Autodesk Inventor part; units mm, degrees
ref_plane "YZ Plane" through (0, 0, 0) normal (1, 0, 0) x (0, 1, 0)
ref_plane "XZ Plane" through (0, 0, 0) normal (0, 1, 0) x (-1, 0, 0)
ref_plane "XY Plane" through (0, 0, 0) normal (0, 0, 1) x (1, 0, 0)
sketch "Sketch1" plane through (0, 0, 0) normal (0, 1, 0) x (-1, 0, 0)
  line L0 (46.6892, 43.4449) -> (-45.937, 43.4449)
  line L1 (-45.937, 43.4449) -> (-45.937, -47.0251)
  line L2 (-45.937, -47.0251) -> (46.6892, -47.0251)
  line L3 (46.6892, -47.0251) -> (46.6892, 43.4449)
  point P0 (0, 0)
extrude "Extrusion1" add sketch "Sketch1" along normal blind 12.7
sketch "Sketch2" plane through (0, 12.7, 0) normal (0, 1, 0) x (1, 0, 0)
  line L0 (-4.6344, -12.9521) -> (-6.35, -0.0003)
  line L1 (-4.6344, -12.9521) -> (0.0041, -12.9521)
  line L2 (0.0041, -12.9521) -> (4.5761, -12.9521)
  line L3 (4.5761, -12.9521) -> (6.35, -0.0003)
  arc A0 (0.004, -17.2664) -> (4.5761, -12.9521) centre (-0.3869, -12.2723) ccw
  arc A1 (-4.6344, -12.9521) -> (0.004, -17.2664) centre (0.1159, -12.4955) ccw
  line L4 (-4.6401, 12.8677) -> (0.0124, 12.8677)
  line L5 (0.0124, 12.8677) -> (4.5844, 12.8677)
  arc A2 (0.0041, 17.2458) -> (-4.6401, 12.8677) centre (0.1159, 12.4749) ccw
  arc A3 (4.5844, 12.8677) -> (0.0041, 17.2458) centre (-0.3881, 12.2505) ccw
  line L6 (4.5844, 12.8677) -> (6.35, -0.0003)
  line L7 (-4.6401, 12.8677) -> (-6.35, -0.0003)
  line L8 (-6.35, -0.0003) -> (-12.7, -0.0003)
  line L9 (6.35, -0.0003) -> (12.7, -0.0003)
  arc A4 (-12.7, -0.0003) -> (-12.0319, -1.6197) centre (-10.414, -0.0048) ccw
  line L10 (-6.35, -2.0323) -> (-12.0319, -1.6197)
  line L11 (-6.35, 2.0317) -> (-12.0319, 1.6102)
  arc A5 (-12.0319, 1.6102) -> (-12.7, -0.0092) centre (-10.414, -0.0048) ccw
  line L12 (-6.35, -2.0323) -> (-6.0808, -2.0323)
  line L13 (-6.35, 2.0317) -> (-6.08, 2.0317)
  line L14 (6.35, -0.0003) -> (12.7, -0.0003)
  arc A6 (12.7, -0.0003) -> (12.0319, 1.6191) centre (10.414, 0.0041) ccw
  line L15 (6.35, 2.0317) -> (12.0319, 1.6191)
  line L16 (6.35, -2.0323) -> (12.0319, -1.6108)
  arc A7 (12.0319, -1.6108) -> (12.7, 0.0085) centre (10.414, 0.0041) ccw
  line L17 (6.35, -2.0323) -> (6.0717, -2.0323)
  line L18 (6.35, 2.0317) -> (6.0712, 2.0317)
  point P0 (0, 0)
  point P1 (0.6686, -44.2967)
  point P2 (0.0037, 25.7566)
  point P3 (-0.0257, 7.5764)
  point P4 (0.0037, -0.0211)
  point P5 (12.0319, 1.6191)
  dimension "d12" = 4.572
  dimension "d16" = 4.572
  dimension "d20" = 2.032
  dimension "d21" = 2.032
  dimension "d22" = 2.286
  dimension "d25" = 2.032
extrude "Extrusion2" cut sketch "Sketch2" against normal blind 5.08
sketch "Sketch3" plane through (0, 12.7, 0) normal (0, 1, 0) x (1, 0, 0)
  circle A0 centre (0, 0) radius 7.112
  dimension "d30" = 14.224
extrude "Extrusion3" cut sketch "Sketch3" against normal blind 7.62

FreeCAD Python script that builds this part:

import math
import FreeCAD as App
import Part
import Sketcher

V = App.Vector
Q = App.Units.Quantity


def add_polygon(sketch, points):
    """Adds a closed chain of lines whose ends are joined by coincident constraints."""
    first, n = sketch.GeometryCount, len(points)
    for a, b in zip(points, points[1:] + points[:1]):
        sketch.addGeometry(Part.LineSegment(App.Vector(*a, 0), App.Vector(*b, 0)), False)
    for i in range(n):
        sketch.addConstraint(Sketcher.Constraint("Coincident", first + i, 2, first + (i + 1) % n, 1))

doc = App.newDocument("Part")
body = doc.addObject("PartDesign::Body", "Body")

# Sketch on XZ plane
sketch1 = body.newObject("Sketcher::SketchObject", "Sketch")
sketch1.AttachmentSupport = (doc.getObject("XZ_Plane"), [""])
sketch1.MapMode = "FlatFace"
add_polygon(sketch1, [(-47, -47), (-47, 43), (46, 43), (46, -47)])  # lines 0-3
sketch1.addConstraint([
    Sketcher.Constraint("Vertical", 0),
    Sketcher.Constraint("Horizontal", 1),
    Sketcher.Constraint("Vertical", 2),
    Sketcher.Constraint("Horizontal", 3),
    Sketcher.Constraint("DistanceX", 1, 1, 1, 2, Q("3.6467 in")),
    Sketcher.Constraint("DistanceY", 0, 1, 0, 2, Q("3.5618 in")),
    Sketcher.Constraint("DistanceX", 0, 2, -1, 1, Q("46.6892 mm")),
    Sketcher.Constraint("DistanceY", -1, 1, 0, 2, Q("43.445 mm")),
])
pad1 = body.newObject("PartDesign::Pad", "Pad")
pad1.Profile = sketch1
pad1.Length = Q("0.5 in")
pad1.Reversed = True

# Sketch on XZ plane
sketch2 = body.newObject("Sketcher::SketchObject", "Sketch001")
sketch2.AttachmentSupport = (doc.getObject("XZ_Plane"), [""])
sketch2.MapMode = "FlatFace"
sketch2.AttachmentOffset = App.Placement(V(0, 0, -0.5 * 25.4), App.Rotation())
sketch2.addGeometry([
    Part.LineSegment(V(-6.08084, 2.032305, 0), V(-4.6344, 12.9521, 0)),  # 0
    Part.ArcOfCircle(Part.Circle(V(0.1159, 12.4955, 0), V(0, 0, 1), 4.772194), math.radians(91.343609), math.radians(174.509583)),  # 1
    Part.ArcOfCircle(Part.Circle(V(-0.3869, 12.2723, 0), V(0, 0, 1), 5.009375), math.radians(7.799474), math.radians(85.524449)),  # 2
    Part.LineSegment(V(4.5761, 12.9521, 0), V(6.071694, 2.032299, 0)),  # 3
    Part.LineSegment(V(6.0717, 2.0323, 0), V(6.35, 2.0323, 0)),  # 4
    Part.LineSegment(V(6.35, 2.0323, 0), V(12.0319, 1.6108, 0)),  # 5
    Part.ArcOfCircle(Part.Circle(V(10.414, -0.0041, 0), V(0, 0, 1), 2.286004), math.radians(0.11028), math.radians(44.94683)),  # 6
    Part.ArcOfCircle(Part.Circle(V(10.414, -0.0041, 0), V(0, 0, 1), 2.286004), math.radians(-44.948604), math.radians(0.11028)),  # 7
    Part.LineSegment(V(12.0319, -1.6191, 0), V(6.35, -2.0317, 0)),  # 8
    Part.LineSegment(V(6.35, -2.0317, 0), V(6.0712, -2.0317, 0)),  # 9
    Part.LineSegment(V(6.071192, -2.031699, 0), V(4.5844, -12.8677, 0)),  # 10
    Part.ArcOfCircle(Part.Circle(V(-0.3881, -12.2505, 0), V(0, 0, 1), 5.010658), math.radians(-85.5107), math.radians(-7.075517)),  # 11
    Part.ArcOfCircle(Part.Circle(V(0.1159, -12.4749, 0), V(0, 0, 1), 4.77221), math.radians(-175.278634), math.radians(-91.342408)),  # 12
    Part.LineSegment(V(-4.6401, -12.8677, 0), V(-6.079988, -2.031698, 0)),  # 13
    Part.LineSegment(V(-6.08, -2.0317, 0), V(-6.35, -2.0317, 0)),  # 14
    Part.LineSegment(V(-6.35, -2.0317, 0), V(-12.0319, -1.6102, 0)),  # 15
    Part.ArcOfCircle(Part.Circle(V(-10.414, 0.0048, 0), V(0, 0, 1), 2.286004), math.radians(-179.887213), math.radians(-135.051396)),  # 16
    Part.ArcOfCircle(Part.Circle(V(-10.414, 0.0048, 0), V(0, 0, 1), 2.286004), math.radians(135.05317), math.radians(180.112787)),  # 17
    Part.LineSegment(V(-12.0319, 1.6197, 0), V(-6.35, 2.0323, 0)),  # 18
    Part.LineSegment(V(-6.35, 2.0323, 0), V(-6.0808, 2.0323, 0)),  # 19
], False)
sketch2.addConstraint([
    Sketcher.Constraint("Coincident", 0, 2, 1, 2),
    Sketcher.Constraint("Coincident", 1, 1, 2, 2),
    Sketcher.Constraint("Tangent", 2, 1, 3, 1),
    Sketcher.Constraint("Coincident", 3, 2, 4, 1),
    Sketcher.Constraint("Coincident", 4, 2, 5, 1),
    Sketcher.Constraint("Coincident", 5, 2, 6, 2),
    Sketcher.Constraint("Tangent", 6, 1, 7, 2),
    Sketcher.Constraint("Coincident", 7, 1, 8, 1),
    Sketcher.Constraint("Coincident", 8, 2, 9, 1),
    Sketcher.Constraint("Coincident", 9, 2, 10, 1),
    Sketcher.Constraint("Coincident", 10, 2, 11, 2),
    Sketcher.Constraint("Coincident", 11, 1, 12, 2),
    Sketcher.Constraint("Coincident", 12, 1, 13, 1),
    Sketcher.Constraint("Coincident", 13, 2, 14, 1),
    Sketcher.Constraint("Coincident", 14, 2, 15, 1),
    Sketcher.Constraint("Coincident", 15, 2, 16, 2),
    Sketcher.Constraint("Tangent", 16, 1, 17, 2),
    Sketcher.Constraint("Coincident", 17, 1, 18, 1),
    Sketcher.Constraint("Coincident", 18, 2, 19, 1),
    Sketcher.Constraint("Coincident", 19, 2, 0, 1),
    Sketcher.Constraint("Horizontal", 4),
    Sketcher.Constraint("Horizontal", 9),
    Sketcher.Constraint("Horizontal", 14),
    Sketcher.Constraint("Horizontal", 19),
    Sketcher.Constraint("Equal", 6, 7),
    Sketcher.Constraint("Equal", 1, 12),
    Sketcher.Constraint("Equal", 7, 16),
    Sketcher.Constraint("Equal", 16, 17),
    Sketcher.Constraint("Symmetric", 8, 2, 14, 2, -2),
    Sketcher.Constraint("Symmetric", 6, 1, 16, 1, -2),
    Sketcher.Constraint("Symmetric", 4, 2, 18, 2, -2),
    Sketcher.Constraint("Parallel", 5, 15),
    Sketcher.Constraint("Parallel", 8, 18),
    Sketcher.Constraint("Horizontal", 0, 2, 2, 1),
    Sketcher.Constraint("Horizontal", 10, 2, 12, 1),
    Sketcher.Constraint("Vertical", 1, 3, 12, 3),
    Sketcher.Constraint("Vertical", 5, 2, 7, 1),
    Sketcher.Constraint("Vertical", 4, 2, 8, 2),
    Sketcher.Constraint("Vertical", 1, 1, 11, 1),
    Sketcher.Constraint("Vertical", 15, 2, 17, 1),
    Sketcher.Constraint("Equal", 5, 15),
    Sketcher.Constraint("Radius", 6, Q("0.09 in")),
    Sketcher.Constraint("DistanceY", -1, 1, 3, 2, Q("0.08 in")),
    Sketcher.Constraint("DistanceY", 8, 2, -1, 1, Q("0.08 in")),
    Sketcher.Constraint("DistanceX", 1, 1, 2, 1, Q("0.18 in")),
    Sketcher.Constraint("DistanceX", -1, 1, 6, 1, Q("0.5 in")),
    Sketcher.Constraint("Angle", 3, Q("-82.2012 deg")),
    Sketcher.Constraint("DistanceX", -1, 1, 4, 2, Q("0.25 in")),
    Sketcher.Constraint("Angle", 13, Q("97.5691 deg")),
    Sketcher.Constraint("Radius", 1, Q("4.7722 mm")),
    Sketcher.Constraint("Radius", 2, Q("5.0094 mm")),
    Sketcher.Constraint("Radius", 11, Q("5.0107 mm")),
    Sketcher.Constraint("DistanceX", 19, 1, 19, 2, Q("0.0106 in")),
    Sketcher.Constraint("Distance", 5, Q("0.2243 in")),
    Sketcher.Constraint("Distance", 10, Q("0.4306 in")),
    Sketcher.Constraint("DistanceX", 4, 1, 4, 2, Q("0.2783 mm")),
    Sketcher.Constraint("DistanceX", 9, 2, 9, 1, Q("0.2788 mm")),
    Sketcher.Constraint("DistanceX", 14, 2, 14, 1, Q("0.27 mm")),
    Sketcher.Constraint("DistanceY", 11, 3, -1, 1, Q("0.4823 in")),
    Sketcher.Constraint("DistanceY", -1, 1, 16, 3, Q("0.0002 in")),
    Sketcher.Constraint("DistanceX", -1, 1, 10, 2, Q("0.1805 in")),
    Sketcher.Constraint("DistanceX", 2, 3, 1, 3, Q("0.0198 in")),
])
pocket1 = body.newObject("PartDesign::Pocket", "Pocket")
pocket1.Profile = sketch2
pocket1.Length = Q("0.2 in")
pocket1.Reversed = True

# Sketch on XZ plane
sketch3 = body.newObject("Sketcher::SketchObject", "Sketch002")
sketch3.AttachmentSupport = (doc.getObject("XZ_Plane"), [""])
sketch3.MapMode = "FlatFace"
sketch3.AttachmentOffset = App.Placement(V(0, 0, -0.5 * 25.4), App.Rotation())
sketch3.addGeometry(Part.Circle(V(0, 0, 0), V(0, 0, 1), 7), False)
sketch3.addConstraint([
    Sketcher.Constraint("Coincident", 0, 3, -1, 1),
    Sketcher.Constraint("Diameter", 0, Q("0.56 in")),
])
pocket2 = body.newObject("PartDesign::Pocket", "Pocket001")
pocket2.Profile = sketch3
pocket2.Length = Q("0.3 in")
pocket2.Reversed = True

doc.recompute()
